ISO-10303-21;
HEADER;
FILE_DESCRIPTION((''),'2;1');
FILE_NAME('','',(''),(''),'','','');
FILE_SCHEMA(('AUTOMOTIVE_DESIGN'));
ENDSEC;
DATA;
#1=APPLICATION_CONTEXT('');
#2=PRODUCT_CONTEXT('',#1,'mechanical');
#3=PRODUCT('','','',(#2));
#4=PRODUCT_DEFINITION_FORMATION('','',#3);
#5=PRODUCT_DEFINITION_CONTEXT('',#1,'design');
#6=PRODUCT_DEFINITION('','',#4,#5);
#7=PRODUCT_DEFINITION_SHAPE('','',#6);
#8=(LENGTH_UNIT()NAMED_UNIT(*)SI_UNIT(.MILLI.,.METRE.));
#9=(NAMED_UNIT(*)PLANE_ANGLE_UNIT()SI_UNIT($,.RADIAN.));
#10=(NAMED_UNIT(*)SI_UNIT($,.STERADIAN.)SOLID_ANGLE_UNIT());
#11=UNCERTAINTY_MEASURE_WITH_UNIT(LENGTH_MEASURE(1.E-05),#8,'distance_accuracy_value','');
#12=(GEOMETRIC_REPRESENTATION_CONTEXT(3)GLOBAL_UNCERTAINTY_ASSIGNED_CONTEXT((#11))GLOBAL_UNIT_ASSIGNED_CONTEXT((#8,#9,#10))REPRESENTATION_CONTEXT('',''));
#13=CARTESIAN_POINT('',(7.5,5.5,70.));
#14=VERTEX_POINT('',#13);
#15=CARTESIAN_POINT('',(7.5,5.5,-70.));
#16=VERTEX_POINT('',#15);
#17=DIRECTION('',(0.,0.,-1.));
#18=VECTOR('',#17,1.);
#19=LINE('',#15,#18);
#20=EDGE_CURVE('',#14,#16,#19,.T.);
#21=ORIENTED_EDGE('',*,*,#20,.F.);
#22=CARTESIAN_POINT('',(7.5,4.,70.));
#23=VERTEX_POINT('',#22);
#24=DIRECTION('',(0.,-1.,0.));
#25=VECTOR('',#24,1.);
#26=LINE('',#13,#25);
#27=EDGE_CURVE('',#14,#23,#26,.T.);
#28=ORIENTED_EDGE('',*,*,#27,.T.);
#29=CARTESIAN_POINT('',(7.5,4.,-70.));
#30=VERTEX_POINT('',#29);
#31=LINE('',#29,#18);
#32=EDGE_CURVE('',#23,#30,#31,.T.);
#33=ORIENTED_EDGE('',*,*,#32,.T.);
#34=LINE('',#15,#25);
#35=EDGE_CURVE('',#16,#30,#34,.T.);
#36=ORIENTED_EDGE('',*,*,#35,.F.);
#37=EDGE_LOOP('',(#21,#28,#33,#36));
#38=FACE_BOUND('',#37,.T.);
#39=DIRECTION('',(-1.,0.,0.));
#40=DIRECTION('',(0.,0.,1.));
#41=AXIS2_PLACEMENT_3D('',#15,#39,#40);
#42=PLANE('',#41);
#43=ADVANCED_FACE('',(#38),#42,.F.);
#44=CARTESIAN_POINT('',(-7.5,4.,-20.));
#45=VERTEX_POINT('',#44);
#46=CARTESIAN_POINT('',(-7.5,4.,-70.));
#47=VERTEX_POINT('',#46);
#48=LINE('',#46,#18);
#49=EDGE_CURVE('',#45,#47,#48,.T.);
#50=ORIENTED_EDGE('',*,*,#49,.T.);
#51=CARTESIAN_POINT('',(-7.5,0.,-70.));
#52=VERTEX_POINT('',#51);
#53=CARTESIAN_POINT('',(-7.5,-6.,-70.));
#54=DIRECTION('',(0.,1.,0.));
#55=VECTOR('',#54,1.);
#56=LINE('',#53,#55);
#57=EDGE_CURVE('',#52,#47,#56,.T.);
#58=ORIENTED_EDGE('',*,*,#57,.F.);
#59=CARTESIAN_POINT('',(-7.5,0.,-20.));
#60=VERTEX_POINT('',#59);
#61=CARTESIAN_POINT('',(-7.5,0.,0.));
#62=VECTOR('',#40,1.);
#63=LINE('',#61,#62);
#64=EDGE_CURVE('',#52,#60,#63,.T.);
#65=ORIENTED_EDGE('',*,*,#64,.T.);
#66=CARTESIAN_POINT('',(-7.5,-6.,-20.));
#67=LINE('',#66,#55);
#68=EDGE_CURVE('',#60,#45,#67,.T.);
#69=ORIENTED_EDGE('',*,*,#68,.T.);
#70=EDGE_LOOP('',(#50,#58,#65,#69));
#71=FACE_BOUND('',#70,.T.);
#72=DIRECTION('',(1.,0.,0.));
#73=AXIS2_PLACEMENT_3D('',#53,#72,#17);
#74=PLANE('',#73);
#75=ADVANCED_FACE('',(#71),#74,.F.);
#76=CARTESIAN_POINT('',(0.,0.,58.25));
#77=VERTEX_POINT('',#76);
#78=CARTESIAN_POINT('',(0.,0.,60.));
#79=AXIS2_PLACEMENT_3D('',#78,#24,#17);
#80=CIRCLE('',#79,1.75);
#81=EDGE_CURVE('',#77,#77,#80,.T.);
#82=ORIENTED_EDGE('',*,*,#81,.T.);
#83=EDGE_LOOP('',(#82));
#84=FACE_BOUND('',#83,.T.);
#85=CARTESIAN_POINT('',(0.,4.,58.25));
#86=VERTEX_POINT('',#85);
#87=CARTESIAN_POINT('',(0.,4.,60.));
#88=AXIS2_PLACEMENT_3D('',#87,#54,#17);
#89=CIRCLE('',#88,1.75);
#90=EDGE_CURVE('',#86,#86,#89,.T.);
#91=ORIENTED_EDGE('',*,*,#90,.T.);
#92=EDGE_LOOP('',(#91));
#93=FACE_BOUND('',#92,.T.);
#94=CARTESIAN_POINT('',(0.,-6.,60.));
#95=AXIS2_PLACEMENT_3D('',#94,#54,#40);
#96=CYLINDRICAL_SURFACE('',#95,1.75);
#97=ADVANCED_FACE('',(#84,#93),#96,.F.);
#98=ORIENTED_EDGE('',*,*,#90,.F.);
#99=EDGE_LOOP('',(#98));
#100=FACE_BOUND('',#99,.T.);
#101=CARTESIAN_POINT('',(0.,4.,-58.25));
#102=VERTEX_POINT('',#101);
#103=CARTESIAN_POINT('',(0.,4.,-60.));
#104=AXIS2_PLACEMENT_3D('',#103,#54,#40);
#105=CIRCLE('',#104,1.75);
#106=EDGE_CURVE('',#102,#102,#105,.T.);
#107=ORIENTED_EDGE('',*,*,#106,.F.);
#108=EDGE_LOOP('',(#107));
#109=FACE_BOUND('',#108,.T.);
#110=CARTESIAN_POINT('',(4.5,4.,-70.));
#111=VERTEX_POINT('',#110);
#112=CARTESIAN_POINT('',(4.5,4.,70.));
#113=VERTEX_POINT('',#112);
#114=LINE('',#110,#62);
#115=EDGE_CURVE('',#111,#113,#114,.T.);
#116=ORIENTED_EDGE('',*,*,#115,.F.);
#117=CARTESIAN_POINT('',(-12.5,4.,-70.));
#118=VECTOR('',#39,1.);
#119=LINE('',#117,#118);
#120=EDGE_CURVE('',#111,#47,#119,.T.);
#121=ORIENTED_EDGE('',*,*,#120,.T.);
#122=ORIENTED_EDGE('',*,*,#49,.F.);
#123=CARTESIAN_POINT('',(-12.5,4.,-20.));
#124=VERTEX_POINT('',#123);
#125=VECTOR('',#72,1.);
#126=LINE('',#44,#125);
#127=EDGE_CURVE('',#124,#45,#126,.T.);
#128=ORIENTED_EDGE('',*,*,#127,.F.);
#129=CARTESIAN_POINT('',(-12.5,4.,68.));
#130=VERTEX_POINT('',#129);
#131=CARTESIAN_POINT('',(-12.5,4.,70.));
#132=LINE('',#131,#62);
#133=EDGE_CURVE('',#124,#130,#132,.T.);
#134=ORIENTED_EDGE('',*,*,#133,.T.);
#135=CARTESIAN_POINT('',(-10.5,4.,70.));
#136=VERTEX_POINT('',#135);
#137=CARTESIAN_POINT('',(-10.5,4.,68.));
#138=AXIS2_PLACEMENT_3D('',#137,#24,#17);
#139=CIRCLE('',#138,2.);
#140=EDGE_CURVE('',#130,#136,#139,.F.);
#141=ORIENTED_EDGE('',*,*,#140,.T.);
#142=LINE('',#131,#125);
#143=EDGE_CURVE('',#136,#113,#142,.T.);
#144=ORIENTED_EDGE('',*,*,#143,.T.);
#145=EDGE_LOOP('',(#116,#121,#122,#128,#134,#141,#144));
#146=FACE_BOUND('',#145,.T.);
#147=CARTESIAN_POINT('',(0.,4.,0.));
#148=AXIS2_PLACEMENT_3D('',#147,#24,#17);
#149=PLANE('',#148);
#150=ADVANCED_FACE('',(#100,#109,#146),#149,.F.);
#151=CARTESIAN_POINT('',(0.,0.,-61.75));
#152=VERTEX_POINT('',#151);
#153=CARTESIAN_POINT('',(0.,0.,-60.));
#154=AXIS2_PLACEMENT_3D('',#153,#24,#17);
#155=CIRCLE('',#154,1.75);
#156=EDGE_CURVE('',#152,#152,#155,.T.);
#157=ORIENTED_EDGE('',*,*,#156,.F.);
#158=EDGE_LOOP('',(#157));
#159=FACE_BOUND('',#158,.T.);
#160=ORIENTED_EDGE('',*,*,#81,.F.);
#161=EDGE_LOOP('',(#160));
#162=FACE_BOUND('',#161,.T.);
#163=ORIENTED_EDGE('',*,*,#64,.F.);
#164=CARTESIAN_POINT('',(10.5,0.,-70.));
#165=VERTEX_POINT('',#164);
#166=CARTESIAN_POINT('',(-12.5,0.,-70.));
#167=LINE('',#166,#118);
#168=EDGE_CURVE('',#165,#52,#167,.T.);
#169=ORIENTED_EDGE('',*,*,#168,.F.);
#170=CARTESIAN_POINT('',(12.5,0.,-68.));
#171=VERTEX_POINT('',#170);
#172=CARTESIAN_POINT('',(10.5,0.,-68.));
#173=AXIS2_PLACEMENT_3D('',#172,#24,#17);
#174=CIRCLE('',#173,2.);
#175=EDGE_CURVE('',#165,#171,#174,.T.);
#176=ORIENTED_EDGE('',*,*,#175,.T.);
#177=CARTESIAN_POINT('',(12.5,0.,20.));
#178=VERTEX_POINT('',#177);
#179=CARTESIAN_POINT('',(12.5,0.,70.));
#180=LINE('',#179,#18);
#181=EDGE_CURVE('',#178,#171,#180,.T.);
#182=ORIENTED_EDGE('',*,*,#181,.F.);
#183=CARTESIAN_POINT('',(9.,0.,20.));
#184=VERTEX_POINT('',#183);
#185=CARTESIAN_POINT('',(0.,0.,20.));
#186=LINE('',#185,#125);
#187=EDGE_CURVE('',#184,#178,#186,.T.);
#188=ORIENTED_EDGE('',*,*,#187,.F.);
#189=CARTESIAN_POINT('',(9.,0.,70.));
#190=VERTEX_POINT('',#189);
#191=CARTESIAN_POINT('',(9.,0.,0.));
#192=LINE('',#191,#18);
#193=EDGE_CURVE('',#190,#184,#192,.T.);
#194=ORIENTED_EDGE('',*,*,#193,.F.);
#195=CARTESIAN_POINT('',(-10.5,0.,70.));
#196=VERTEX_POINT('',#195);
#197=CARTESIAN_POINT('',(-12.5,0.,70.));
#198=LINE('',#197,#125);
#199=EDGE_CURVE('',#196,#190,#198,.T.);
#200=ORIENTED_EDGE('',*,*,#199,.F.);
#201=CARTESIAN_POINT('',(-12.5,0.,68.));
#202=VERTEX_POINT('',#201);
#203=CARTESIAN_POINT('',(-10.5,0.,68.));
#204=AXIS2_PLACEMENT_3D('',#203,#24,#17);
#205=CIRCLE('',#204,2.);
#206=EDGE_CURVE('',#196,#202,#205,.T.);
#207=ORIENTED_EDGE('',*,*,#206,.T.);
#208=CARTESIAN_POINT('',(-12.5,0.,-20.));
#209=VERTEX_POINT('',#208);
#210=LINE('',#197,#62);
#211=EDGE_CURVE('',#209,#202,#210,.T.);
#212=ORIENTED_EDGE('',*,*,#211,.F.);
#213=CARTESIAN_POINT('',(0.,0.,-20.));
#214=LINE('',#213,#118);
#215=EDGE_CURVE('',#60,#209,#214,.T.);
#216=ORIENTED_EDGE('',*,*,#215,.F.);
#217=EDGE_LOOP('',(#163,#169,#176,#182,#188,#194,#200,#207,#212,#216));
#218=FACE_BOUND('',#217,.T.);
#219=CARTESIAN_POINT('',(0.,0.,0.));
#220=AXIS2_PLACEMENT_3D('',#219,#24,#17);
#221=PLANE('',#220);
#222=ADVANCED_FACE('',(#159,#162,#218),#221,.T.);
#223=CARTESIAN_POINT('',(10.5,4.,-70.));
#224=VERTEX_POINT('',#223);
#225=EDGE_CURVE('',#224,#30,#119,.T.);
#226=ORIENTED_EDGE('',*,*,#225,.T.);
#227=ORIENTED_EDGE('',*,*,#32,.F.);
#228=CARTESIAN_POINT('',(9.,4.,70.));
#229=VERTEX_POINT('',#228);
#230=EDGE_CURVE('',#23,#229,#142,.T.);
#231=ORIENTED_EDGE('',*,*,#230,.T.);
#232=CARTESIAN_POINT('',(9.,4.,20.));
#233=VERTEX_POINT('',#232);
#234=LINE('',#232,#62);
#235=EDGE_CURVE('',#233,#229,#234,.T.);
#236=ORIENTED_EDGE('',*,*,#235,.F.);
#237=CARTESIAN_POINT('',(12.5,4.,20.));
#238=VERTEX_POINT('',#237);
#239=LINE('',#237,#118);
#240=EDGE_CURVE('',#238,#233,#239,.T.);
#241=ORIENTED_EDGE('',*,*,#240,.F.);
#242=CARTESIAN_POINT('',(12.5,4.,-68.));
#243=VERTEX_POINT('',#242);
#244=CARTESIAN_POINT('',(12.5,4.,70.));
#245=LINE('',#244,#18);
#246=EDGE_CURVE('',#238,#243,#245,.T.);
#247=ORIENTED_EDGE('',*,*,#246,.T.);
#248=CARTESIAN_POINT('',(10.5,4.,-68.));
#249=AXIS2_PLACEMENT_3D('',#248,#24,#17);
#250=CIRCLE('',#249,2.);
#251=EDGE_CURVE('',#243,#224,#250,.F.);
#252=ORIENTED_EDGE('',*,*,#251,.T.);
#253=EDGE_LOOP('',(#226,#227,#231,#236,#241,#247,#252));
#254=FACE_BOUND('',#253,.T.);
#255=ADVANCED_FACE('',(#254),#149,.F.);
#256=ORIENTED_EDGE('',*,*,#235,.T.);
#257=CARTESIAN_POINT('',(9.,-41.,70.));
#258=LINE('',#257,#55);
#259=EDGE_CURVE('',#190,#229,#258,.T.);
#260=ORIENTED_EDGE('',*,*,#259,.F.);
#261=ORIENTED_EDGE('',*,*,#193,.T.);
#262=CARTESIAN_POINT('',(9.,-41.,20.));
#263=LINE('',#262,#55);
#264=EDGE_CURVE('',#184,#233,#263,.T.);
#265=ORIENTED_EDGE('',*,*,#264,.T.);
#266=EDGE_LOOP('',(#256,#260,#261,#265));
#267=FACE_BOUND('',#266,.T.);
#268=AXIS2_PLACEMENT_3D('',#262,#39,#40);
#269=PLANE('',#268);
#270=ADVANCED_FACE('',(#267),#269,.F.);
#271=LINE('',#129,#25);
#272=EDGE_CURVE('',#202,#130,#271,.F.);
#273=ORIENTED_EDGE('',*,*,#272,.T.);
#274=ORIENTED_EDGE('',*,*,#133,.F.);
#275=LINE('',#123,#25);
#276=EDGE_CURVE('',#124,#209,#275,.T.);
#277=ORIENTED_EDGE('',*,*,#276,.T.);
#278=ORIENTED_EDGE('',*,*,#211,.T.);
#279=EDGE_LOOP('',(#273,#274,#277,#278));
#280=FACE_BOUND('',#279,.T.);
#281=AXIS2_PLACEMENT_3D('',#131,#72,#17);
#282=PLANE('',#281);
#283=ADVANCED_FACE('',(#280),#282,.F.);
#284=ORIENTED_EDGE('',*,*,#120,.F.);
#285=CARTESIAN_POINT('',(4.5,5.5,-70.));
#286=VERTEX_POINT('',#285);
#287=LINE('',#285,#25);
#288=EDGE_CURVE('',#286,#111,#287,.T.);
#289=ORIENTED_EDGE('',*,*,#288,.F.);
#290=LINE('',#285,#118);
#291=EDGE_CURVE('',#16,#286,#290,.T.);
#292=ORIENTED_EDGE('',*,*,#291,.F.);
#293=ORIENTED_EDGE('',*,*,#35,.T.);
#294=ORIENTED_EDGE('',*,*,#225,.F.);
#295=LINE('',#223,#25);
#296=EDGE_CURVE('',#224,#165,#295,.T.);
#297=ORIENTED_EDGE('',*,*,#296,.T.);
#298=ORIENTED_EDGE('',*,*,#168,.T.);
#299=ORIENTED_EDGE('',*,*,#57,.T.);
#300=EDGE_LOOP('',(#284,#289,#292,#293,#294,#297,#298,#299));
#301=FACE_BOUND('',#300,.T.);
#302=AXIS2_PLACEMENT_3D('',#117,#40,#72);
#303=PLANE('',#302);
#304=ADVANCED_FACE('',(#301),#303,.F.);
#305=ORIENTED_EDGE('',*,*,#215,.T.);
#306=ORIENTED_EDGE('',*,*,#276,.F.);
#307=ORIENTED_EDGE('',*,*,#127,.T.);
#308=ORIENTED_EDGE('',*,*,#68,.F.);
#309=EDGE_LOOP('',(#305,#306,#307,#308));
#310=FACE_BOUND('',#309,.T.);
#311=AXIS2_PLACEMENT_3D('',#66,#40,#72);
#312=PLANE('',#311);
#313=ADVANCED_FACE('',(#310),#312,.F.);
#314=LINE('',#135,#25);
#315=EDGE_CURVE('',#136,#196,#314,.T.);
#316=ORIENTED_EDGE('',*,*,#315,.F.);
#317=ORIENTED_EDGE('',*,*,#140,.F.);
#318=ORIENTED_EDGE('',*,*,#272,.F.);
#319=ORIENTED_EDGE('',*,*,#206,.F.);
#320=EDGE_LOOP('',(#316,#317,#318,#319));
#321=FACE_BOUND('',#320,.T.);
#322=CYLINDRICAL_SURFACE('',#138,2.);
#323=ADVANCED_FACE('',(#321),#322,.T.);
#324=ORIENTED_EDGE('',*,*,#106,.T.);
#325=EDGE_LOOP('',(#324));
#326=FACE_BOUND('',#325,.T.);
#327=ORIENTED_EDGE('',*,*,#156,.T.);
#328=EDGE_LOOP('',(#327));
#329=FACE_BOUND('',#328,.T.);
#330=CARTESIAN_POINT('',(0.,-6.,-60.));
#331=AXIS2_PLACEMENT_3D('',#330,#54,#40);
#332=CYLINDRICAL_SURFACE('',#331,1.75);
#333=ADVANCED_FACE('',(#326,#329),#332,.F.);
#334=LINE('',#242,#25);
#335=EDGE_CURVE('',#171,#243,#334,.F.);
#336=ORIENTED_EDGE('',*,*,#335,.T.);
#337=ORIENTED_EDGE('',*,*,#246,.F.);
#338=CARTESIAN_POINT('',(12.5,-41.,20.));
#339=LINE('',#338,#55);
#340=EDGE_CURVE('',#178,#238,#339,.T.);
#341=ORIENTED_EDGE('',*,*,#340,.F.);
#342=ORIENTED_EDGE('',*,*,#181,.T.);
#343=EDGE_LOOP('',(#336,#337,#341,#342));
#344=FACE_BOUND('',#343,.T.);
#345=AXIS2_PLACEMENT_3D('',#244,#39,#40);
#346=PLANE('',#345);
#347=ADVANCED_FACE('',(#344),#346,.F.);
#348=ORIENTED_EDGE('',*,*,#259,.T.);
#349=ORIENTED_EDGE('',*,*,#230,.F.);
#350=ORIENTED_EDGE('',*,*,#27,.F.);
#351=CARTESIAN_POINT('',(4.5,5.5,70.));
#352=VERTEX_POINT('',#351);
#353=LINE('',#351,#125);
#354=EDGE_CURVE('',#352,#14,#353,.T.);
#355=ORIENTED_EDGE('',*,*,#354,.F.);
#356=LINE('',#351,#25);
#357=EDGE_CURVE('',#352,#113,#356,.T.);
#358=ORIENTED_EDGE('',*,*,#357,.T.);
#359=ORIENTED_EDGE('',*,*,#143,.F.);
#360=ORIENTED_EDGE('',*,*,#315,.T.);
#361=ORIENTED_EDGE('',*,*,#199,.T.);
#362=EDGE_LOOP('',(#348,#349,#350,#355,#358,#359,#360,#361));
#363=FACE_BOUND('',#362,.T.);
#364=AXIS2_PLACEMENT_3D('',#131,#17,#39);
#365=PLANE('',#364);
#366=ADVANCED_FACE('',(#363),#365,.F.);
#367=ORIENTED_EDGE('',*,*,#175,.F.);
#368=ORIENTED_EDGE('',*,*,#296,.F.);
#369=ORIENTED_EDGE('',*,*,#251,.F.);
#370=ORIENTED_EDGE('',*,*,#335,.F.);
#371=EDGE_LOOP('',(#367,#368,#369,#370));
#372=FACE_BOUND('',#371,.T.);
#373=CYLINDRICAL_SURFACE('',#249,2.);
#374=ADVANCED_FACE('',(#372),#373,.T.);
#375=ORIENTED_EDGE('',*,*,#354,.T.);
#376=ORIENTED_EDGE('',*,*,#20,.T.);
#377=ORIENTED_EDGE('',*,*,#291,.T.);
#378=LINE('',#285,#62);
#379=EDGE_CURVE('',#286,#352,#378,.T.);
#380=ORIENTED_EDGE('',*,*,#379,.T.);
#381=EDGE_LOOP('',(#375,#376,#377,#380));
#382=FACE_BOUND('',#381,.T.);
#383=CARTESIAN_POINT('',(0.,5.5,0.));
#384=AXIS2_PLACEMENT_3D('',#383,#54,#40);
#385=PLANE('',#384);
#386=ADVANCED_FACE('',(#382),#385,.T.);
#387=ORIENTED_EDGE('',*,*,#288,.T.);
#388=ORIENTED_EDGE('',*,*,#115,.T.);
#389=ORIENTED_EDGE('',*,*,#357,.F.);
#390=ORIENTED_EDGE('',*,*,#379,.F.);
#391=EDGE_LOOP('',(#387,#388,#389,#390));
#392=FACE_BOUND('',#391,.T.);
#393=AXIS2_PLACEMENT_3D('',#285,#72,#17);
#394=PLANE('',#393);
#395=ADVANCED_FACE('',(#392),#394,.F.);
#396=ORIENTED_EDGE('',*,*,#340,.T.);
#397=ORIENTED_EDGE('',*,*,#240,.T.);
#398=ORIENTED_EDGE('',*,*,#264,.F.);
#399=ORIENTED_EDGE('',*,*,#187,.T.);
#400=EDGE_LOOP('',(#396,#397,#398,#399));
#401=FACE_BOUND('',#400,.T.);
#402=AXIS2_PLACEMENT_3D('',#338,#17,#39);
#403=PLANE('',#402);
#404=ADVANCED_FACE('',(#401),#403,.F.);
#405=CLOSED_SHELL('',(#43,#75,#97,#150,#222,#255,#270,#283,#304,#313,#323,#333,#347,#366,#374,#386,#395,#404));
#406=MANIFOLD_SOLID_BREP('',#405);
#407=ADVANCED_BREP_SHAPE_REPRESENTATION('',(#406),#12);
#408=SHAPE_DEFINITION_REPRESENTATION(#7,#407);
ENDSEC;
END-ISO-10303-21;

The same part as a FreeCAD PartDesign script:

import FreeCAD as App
import Part
import Sketcher
from FreeCAD import Vector


def edges_at(feature, points):
    """Names of the edges that pass closest to the given points."""
    edges = feature.Shape.Edges
    near = lambda p: min(range(len(edges)), key=lambda i: edges[i].distToShape(Part.Vertex(*p))[0])
    return sorted({f"Edge{near(p) + 1}" for p in points})

doc = App.newDocument("Part")
body = doc.addObject("PartDesign::Body", "Body")

# Sketch on XZ plane
sketch1 = body.newObject("Sketcher::SketchObject", "Sketch")
sketch1.AttachmentSupport = (doc.getObject("XZ_Plane"), [""])
sketch1.MapMode = "FlatFace"
sketch1.addGeometry([
    Part.LineSegment(Vector(-12, -70, 0), Vector(-12, 70, 0)),
    Part.LineSegment(Vector(-12, 70, 0), Vector(12, 70, 0)),
    Part.LineSegment(Vector(12, 70, 0), Vector(12, -70, 0)),
    Part.LineSegment(Vector(12, -70, 0), Vector(-12, -70, 0)),
], False)
sketch1.addConstraint([
    Sketcher.Constraint("Coincident", 0, 2, 1, 1),
    Sketcher.Constraint("Coincident", 1, 2, 2, 1),
    Sketcher.Constraint("Coincident", 2, 2, 3, 1),
    Sketcher.Constraint("Coincident", 3, 2, 0, 1),
    Sketcher.Constraint("Vertical", 0),
    Sketcher.Constraint("Horizontal", 1),
    Sketcher.Constraint("Vertical", 2),
    Sketcher.Constraint("Horizontal", 3),
    Sketcher.Constraint("Symmetric", 0, 2, 2, 2, -1, 1),
    Sketcher.Constraint("DistanceX", 1, 1, 1, 2, 25.0),
    Sketcher.Constraint("DistanceY", 0, 1, 0, 2, 140.0),
])
pad1 = body.newObject("PartDesign::Pad", "Pad")
pad1.Profile = sketch1
pad1.Length = 4
pad1.Reversed = True
doc.recompute()

fillet = body.newObject("PartDesign::Fillet", "Fillet")
fillet.Base = (pad1, edges_at(pad1, [
    (12.5, 2, 70),
    (-12.5, 2, 70),
    (-12.5, 2, -70),
    (12.5, 2, -70),
]))
fillet.Radius = 2

# Sketch on XZ plane
sketch2 = body.newObject("Sketcher::SketchObject", "Sketch001")
sketch2.AttachmentSupport = (doc.getObject("XZ_Plane"), [""])
sketch2.MapMode = "FlatFace"
sketch2.AttachmentOffset = App.Placement(Vector(0, 0, -4), App.Rotation())
sketch2.addGeometry([
    Part.Circle(Vector(0, -60, 0), Vector(0, 0, 1), 1.8),
    Part.Circle(Vector(0, 60, 0), Vector(0, 0, 1), 1.8),
], False)
sketch2.addConstraint([
    Sketcher.Constraint("Equal", 0, 1),
    Sketcher.Constraint("Symmetric", 0, 3, 1, 3, -1, 1),
    Sketcher.Constraint("PointOnObject", 0, 3, -2),
    Sketcher.Constraint("Diameter", 0, 3.5),
    Sketcher.Constraint("DistanceY", 0, 3, -1, 1, 60.0),
])
pocket1 = body.newObject("PartDesign::Pocket", "Pocket")
pocket1.Profile = sketch2
pocket1.Length = 10
pocket1.Reversed = True

# Sketch on XZ plane
sketch3 = body.newObject("Sketcher::SketchObject", "Sketch002")
sketch3.AttachmentSupport = (doc.getObject("XZ_Plane"), [""])
sketch3.MapMode = "FlatFace"
sketch3.AttachmentOffset = App.Placement(Vector(0, 0, -4), App.Rotation())
sketch3.addGeometry([
    Part.LineSegment(Vector(4.5, -70, 0), Vector(4.5, 70, 0)),
    Part.LineSegment(Vector(4.5, 70, 0), Vector(7.5, 70, 0)),
    Part.LineSegment(Vector(7.5, 70, 0), Vector(7.5, -70, 0)),
    Part.LineSegment(Vector(7.5, -70, 0), Vector(4.5, -70, 0)),
], False)
sketch3.addConstraint([
    Sketcher.Constraint("Coincident", 0, 2, 1, 1),
    Sketcher.Constraint("Coincident", 1, 2, 2, 1),
    Sketcher.Constraint("Coincident", 2, 2, 3, 1),
    Sketcher.Constraint("Coincident", 3, 2, 0, 1),
    Sketcher.Constraint("Vertical", 0),
    Sketcher.Constraint("Horizontal", 1),
    Sketcher.Constraint("Vertical", 2),
    Sketcher.Constraint("Horizontal", 3),
    Sketcher.Constraint("DistanceX", 1, 1, 1, 2, 3.0),
    Sketcher.Constraint("DistanceY", 0, 1, 0, 2, 140.0),
    Sketcher.Constraint("DistanceY", -1, 1, 0, 2, 70.0),
    Sketcher.Constraint("DistanceX", -1, 1, 0, 2, 4.5),
])
pad2 = body.newObject("PartDesign::Pad", "Pad001")
pad2.Profile = sketch3
pad2.Length = 1.5
pad2.Reversed = True

# Sketch on XZ plane
sketch4 = body.newObject("Sketcher::SketchObject", "Sketch003")
sketch4.AttachmentSupport = (doc.getObject("XZ_Plane"), [""])
sketch4.MapMode = "FlatFace"
sketch4.AttachmentOffset = App.Placement(Vector(0, 0, -4), App.Rotation())
sketch4.addGeometry([
    Part.LineSegment(Vector(-28, -70, 0), Vector(-28, -20, 0)),
    Part.LineSegment(Vector(-28, -20, 0), Vector(-8, -20, 0)),
    Part.LineSegment(Vector(-8, -20, 0), Vector(-8, -70, 0)),
    Part.LineSegment(Vector(-8, -70, 0), Vector(-28, -70, 0)),
], False)
sketch4.addConstraint([
    Sketcher.Constraint("Coincident", 0, 2, 1, 1),
    Sketcher.Constraint("Coincident", 1, 2, 2, 1),
    Sketcher.Constraint("Coincident", 2, 2, 3, 1),
    Sketcher.Constraint("Coincident", 3, 2, 0, 1),
    Sketcher.Constraint("Vertical", 0),
    Sketcher.Constraint("Horizontal", 1),
    Sketcher.Constraint("Vertical", 2),
    Sketcher.Constraint("Horizontal", 3),
    Sketcher.Constraint("DistanceY", 0, 1, 0, 2, 50.0),
    Sketcher.Constraint("DistanceY", 0, 2, -1, 1, 20.0),
    Sketcher.Constraint("DistanceX", 1, 2, -1, 1, 7.5),
    Sketcher.Constraint("DistanceX", 1, 1, 1, 2, 20.611875),
])
pocket2 = body.newObject("PartDesign::Pocket", "Pocket001")
pocket2.Profile = sketch4
pocket2.Length = 10
pocket2.Reversed = True

# Sketch on XZ plane
sketch5 = body.newObject("Sketcher::SketchObject", "Sketch004")
sketch5.AttachmentSupport = (doc.getObject("XZ_Plane"), [""])
sketch5.MapMode = "FlatFace"
sketch5.AttachmentOffset = App.Placement(Vector(0, 0, -4), App.Rotation())
sketch5.addGeometry([
    Part.LineSegment(Vector(9, 20, 0), Vector(9, 70, 0)),
    Part.LineSegment(Vector(9, 70, 0), Vector(12.5, 70, 0)),
    Part.LineSegment(Vector(12.5, 70, 0), Vector(12.5, 20, 0)),
    Part.LineSegment(Vector(12.5, 20, 0), Vector(9, 20, 0)),
], False)
sketch5.addConstraint([
    Sketcher.Constraint("Coincident", 0, 2, 1, 1),
    Sketcher.Constraint("Coincident", 1, 2, 2, 1),
    Sketcher.Constraint("Coincident", 2, 2, 3, 1),
    Sketcher.Constraint("Coincident", 3, 2, 0, 1),
    Sketcher.Constraint("Vertical", 0),
    Sketcher.Constraint("Horizontal", 1),
    Sketcher.Constraint("Vertical", 2),
    Sketcher.Constraint("Horizontal", 3),
    Sketcher.Constraint("DistanceY", 0, 1, 0, 2, 50.0),
    Sketcher.Constraint("DistanceX", 1, 1, 1, 2, 3.5),
    Sketcher.Constraint("DistanceX", -1, 1, 0, 2, 9.0),
    Sketcher.Constraint("DistanceY", -1, 1, 0, 2, 70.0),
])
pocket3 = body.newObject("PartDesign::Pocket", "Pocket002")
pocket3.Profile = sketch5
pocket3.Length = 45
pocket3.Reversed = True

doc.recompute()
